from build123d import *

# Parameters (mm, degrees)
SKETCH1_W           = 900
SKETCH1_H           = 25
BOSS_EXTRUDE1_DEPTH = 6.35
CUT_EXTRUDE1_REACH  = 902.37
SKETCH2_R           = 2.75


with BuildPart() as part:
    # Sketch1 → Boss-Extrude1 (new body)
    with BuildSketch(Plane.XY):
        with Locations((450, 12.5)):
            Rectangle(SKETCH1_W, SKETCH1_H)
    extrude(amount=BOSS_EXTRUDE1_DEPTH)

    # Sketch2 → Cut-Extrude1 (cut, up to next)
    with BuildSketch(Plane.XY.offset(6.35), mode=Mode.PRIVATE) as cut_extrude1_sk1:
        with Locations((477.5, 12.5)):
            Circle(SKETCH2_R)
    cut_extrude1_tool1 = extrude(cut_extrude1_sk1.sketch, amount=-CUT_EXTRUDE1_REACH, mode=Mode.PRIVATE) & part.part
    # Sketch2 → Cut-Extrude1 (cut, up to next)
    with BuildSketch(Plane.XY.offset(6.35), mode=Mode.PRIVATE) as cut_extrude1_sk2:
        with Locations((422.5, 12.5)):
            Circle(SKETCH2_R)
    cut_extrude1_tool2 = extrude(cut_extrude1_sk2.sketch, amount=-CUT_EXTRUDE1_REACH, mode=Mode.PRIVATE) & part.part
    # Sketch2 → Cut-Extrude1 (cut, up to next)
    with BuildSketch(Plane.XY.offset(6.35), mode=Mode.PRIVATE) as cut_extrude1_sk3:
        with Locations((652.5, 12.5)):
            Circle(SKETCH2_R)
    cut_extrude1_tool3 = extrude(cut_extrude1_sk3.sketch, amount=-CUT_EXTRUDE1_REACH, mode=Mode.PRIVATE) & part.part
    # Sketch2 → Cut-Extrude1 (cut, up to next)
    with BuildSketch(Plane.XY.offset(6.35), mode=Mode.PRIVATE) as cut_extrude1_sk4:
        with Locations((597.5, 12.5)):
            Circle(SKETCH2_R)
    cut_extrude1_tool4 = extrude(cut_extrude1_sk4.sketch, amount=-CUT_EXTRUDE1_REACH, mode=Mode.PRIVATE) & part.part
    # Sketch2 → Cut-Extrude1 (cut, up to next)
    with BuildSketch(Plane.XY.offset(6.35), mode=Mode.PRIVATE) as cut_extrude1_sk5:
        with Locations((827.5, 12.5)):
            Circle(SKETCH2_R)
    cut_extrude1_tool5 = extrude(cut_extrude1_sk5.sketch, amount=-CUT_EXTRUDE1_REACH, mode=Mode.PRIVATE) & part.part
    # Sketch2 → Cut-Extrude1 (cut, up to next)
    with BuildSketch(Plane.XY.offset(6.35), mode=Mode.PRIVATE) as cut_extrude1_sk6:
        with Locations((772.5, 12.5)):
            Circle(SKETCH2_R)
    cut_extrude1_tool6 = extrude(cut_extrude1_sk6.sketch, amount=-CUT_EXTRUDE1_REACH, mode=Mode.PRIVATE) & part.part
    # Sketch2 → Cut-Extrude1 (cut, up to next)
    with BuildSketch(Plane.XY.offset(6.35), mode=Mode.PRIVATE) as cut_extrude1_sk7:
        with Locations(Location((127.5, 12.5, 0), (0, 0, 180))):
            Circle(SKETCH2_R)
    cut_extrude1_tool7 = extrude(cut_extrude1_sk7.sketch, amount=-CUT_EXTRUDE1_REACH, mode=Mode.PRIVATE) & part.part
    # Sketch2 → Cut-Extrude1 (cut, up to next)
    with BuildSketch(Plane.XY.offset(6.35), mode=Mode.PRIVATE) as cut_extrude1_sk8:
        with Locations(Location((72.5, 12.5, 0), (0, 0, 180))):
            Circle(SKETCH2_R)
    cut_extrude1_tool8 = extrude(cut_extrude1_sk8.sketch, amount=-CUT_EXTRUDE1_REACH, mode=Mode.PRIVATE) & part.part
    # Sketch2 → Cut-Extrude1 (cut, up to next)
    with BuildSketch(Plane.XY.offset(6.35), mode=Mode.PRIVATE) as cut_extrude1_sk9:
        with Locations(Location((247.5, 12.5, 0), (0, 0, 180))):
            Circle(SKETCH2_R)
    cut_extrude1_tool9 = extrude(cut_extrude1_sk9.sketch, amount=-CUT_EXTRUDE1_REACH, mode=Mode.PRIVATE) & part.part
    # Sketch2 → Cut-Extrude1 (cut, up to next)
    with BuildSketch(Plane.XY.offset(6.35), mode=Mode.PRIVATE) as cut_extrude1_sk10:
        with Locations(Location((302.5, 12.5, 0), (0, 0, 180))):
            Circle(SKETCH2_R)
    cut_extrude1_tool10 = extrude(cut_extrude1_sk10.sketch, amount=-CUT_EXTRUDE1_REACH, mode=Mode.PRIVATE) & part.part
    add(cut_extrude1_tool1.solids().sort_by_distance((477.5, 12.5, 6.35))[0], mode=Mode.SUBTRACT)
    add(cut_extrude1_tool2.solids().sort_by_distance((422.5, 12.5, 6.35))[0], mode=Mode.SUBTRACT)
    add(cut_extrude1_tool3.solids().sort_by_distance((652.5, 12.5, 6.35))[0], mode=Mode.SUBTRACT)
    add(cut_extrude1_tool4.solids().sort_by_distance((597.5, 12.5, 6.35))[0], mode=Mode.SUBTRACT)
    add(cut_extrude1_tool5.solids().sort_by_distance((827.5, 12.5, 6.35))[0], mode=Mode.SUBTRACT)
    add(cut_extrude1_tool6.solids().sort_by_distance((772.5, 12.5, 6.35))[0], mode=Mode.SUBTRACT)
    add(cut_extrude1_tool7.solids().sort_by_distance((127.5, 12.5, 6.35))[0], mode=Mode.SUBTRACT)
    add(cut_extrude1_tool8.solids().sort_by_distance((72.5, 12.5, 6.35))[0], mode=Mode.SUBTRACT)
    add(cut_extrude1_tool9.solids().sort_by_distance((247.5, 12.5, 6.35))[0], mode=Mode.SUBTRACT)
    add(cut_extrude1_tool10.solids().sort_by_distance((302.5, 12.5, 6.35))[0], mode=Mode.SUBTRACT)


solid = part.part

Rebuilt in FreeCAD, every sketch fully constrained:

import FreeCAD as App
import Part
import Sketcher
from FreeCAD import Vector
Q = App.Units.Quantity


def add_polygon(sketch, points):
    """Adds a closed chain of lines whose ends are joined by coincident constraints."""
    first, n = sketch.GeometryCount, len(points)
    for a, b in zip(points, points[1:] + points[:1]):
        sketch.addGeometry(Part.LineSegment(App.Vector(*a, 0), App.Vector(*b, 0)), False)
    for i in range(n):
        sketch.addConstraint(Sketcher.Constraint("Coincident", first + i, 2, first + (i + 1) % n, 1))

doc = App.newDocument("Part")
body = doc.addObject("PartDesign::Body", "Body")

# Sketch on XY plane
sketch1 = body.newObject("Sketcher::SketchObject", "Sketch")
sketch1.AttachmentSupport = (doc.getObject("XY_Plane"), [""])
sketch1.MapMode = "FlatFace"
add_polygon(sketch1, [(0, 25), (0, 0), (900, 0), (900, 25)])  # lines 0-3
sketch1.addConstraint([
    Sketcher.Constraint("Vertical", 0),
    Sketcher.Constraint("Horizontal", 1),
    Sketcher.Constraint("Vertical", 2),
    Sketcher.Constraint("Horizontal", 3),
    Sketcher.Constraint("Coincident", 0, 2, -1, 1),
    Sketcher.Constraint("DistanceX", 1, 1, 1, 2, Q("900 mm")),
    Sketcher.Constraint("DistanceY", 0, 2, 0, 1, Q("25 mm")),
])
pad1 = body.newObject("PartDesign::Pad", "Pad")
pad1.Profile = sketch1
pad1.Length = 6.35

# Sketch on XY plane
sketch2 = body.newObject("Sketcher::SketchObject", "Sketch001")
sketch2.AttachmentSupport = (doc.getObject("XY_Plane"), [""])
sketch2.MapMode = "FlatFace"
sketch2.AttachmentOffset = App.Placement(Vector(0, 0, 6.35), App.Rotation())
sketch2.addGeometry(Part.Circle(Vector(477.5, 12.5, 0), Vector(0, 0, 1), 2.8), False)
sketch2.addConstraint([
    Sketcher.Constraint("Diameter", 0, Q("5.5 mm")),
    Sketcher.Constraint("DistanceX", -1, 1, 0, 3, Q("477.5 mm")),
    Sketcher.Constraint("DistanceY", -1, 1, 0, 3, Q("12.5 mm")),
])
pocket1 = body.newObject("PartDesign::Pocket", "Pocket")
pocket1.Profile = sketch2
pocket1.Type = "UpToFirst"

# Sketch on XY plane
sketch3 = body.newObject("Sketcher::SketchObject", "Sketch002")
sketch3.AttachmentSupport = (doc.getObject("XY_Plane"), [""])
sketch3.MapMode = "FlatFace"
sketch3.AttachmentOffset = App.Placement(Vector(0, 0, 6.35), App.Rotation())
sketch3.addGeometry(Part.Circle(Vector(422.5, 12.5, 0), Vector(0, 0, 1), 2.8), False)
sketch3.addConstraint([
    Sketcher.Constraint("Diameter", 0, Q("5.5 mm")),
    Sketcher.Constraint("DistanceX", -1, 1, 0, 3, Q("422.5 mm")),
    Sketcher.Constraint("DistanceY", -1, 1, 0, 3, Q("12.5 mm")),
])
pocket2 = body.newObject("PartDesign::Pocket", "Pocket001")
pocket2.Profile = sketch3
pocket2.Type = "UpToFirst"

# Sketch on XY plane
sketch4 = body.newObject("Sketcher::SketchObject", "Sketch003")
sketch4.AttachmentSupport = (doc.getObject("XY_Plane"), [""])
sketch4.MapMode = "FlatFace"
sketch4.AttachmentOffset = App.Placement(Vector(0, 0, 6.35), App.Rotation())
sketch4.addGeometry(Part.Circle(Vector(652.5, 12.5, 0), Vector(0, 0, 1), 2.8), False)
sketch4.addConstraint([
    Sketcher.Constraint("Diameter", 0, Q("5.5 mm")),
    Sketcher.Constraint("DistanceX", -1, 1, 0, 3, Q("652.5 mm")),
    Sketcher.Constraint("DistanceY", -1, 1, 0, 3, Q("12.5 mm")),
])
pocket3 = body.newObject("PartDesign::Pocket", "Pocket002")
pocket3.Profile = sketch4
pocket3.Type = "UpToFirst"

# Sketch on XY plane
sketch5 = body.newObject("Sketcher::SketchObject", "Sketch004")
sketch5.AttachmentSupport = (doc.getObject("XY_Plane"), [""])
sketch5.MapMode = "FlatFace"
sketch5.AttachmentOffset = App.Placement(Vector(0, 0, 6.35), App.Rotation())
sketch5.addGeometry(Part.Circle(Vector(597.5, 12.5, 0), Vector(0, 0, 1), 2.8), False)
sketch5.addConstraint([
    Sketcher.Constraint("Diameter", 0, Q("5.5 mm")),
    Sketcher.Constraint("DistanceX", -1, 1, 0, 3, Q("597.5 mm")),
    Sketcher.Constraint("DistanceY", -1, 1, 0, 3, Q("12.5 mm")),
])
pocket4 = body.newObject("PartDesign::Pocket", "Pocket003")
pocket4.Profile = sketch5
pocket4.Type = "UpToFirst"

# Sketch on XY plane
sketch6 = body.newObject("Sketcher::SketchObject", "Sketch005")
sketch6.AttachmentSupport = (doc.getObject("XY_Plane"), [""])
sketch6.MapMode = "FlatFace"
sketch6.AttachmentOffset = App.Placement(Vector(0, 0, 6.35), App.Rotation())
sketch6.addGeometry(Part.Circle(Vector(827.5, 12.5, 0), Vector(0, 0, 1), 2.8), False)
sketch6.addConstraint([
    Sketcher.Constraint("Diameter", 0, Q("5.5 mm")),
    Sketcher.Constraint("DistanceX", -1, 1, 0, 3, Q("827.5 mm")),
    Sketcher.Constraint("DistanceY", -1, 1, 0, 3, Q("12.5 mm")),
])
pocket5 = body.newObject("PartDesign::Pocket", "Pocket004")
pocket5.Profile = sketch6
pocket5.Type = "UpToFirst"

# Sketch on XY plane
sketch7 = body.newObject("Sketcher::SketchObject", "Sketch006")
sketch7.AttachmentSupport = (doc.getObject("XY_Plane"), [""])
sketch7.MapMode = "FlatFace"
sketch7.AttachmentOffset = App.Placement(Vector(0, 0, 6.35), App.Rotation())
sketch7.addGeometry(Part.Circle(Vector(772.5, 12.5, 0), Vector(0, 0, 1), 2.8), False)
sketch7.addConstraint([
    Sketcher.Constraint("Diameter", 0, Q("5.5 mm")),
    Sketcher.Constraint("DistanceX", -1, 1, 0, 3, Q("772.5 mm")),
    Sketcher.Constraint("DistanceY", -1, 1, 0, 3, Q("12.5 mm")),
])
pocket6 = body.newObject("PartDesign::Pocket", "Pocket005")
pocket6.Profile = sketch7
pocket6.Type = "UpToFirst"

# Sketch on XY plane
sketch8 = body.newObject("Sketcher::SketchObject", "Sketch007")
sketch8.AttachmentSupport = (doc.getObject("XY_Plane"), [""])
sketch8.MapMode = "FlatFace"
sketch8.AttachmentOffset = App.Placement(Vector(0, 0, 6.35), App.Rotation())
sketch8.addGeometry(Part.Circle(Vector(127.5, 12.5, 0), Vector(0, 0, 1), 2.8), False)
sketch8.addConstraint([
    Sketcher.Constraint("Diameter", 0, Q("5.5 mm")),
    Sketcher.Constraint("DistanceX", -1, 1, 0, 3, Q("127.5 mm")),
    Sketcher.Constraint("DistanceY", -1, 1, 0, 3, Q("12.5 mm")),
])
pocket7 = body.newObject("PartDesign::Pocket", "Pocket006")
pocket7.Profile = sketch8
pocket7.Type = "UpToFirst"

# Sketch on XY plane
sketch9 = body.newObject("Sketcher::SketchObject", "Sketch008")
sketch9.AttachmentSupport = (doc.getObject("XY_Plane"), [""])
sketch9.MapMode = "FlatFace"
sketch9.AttachmentOffset = App.Placement(Vector(0, 0, 6.35), App.Rotation())
sketch9.addGeometry(Part.Circle(Vector(72.5, 12.5, 0), Vector(0, 0, 1), 2.8), False)
sketch9.addConstraint([
    Sketcher.Constraint("Diameter", 0, Q("5.5 mm")),
    Sketcher.Constraint("DistanceX", -1, 1, 0, 3, Q("72.5 mm")),
    Sketcher.Constraint("DistanceY", -1, 1, 0, 3, Q("12.5 mm")),
])
pocket8 = body.newObject("PartDesign::Pocket", "Pocket007")
pocket8.Profile = sketch9
pocket8.Type = "UpToFirst"

# Sketch on XY plane
sketch10 = body.newObject("Sketcher::SketchObject", "Sketch009")
sketch10.AttachmentSupport = (doc.getObject("XY_Plane"), [""])
sketch10.MapMode = "FlatFace"
sketch10.AttachmentOffset = App.Placement(Vector(0, 0, 6.35), App.Rotation())
sketch10.addGeometry(Part.Circle(Vector(247.5, 12.5, 0), Vector(0, 0, 1), 2.8), False)
sketch10.addConstraint([
    Sketcher.Constraint("Diameter", 0, Q("5.5 mm")),
    Sketcher.Constraint("DistanceX", -1, 1, 0, 3, Q("247.5 mm")),
    Sketcher.Constraint("DistanceY", -1, 1, 0, 3, Q("12.5 mm")),
])
pocket9 = body.newObject("PartDesign::Pocket", "Pocket008")
pocket9.Profile = sketch10
pocket9.Type = "UpToFirst"

# Sketch on XY plane
sketch11 = body.newObject("Sketcher::SketchObject", "Sketch010")
sketch11.AttachmentSupport = (doc.getObject("XY_Plane"), [""])
sketch11.MapMode = "FlatFace"
sketch11.AttachmentOffset = App.Placement(Vector(0, 0, 6.35), App.Rotation())
sketch11.addGeometry(Part.Circle(Vector(302.5, 12.5, 0), Vector(0, 0, 1), 2.8), False)
sketch11.addConstraint([
    Sketcher.Constraint("Diameter", 0, Q("5.5 mm")),
    Sketcher.Constraint("DistanceX", -1, 1, 0, 3, Q("302.5 mm")),
    Sketcher.Constraint("DistanceY", -1, 1, 0, 3, Q("12.5 mm")),
])
pocket10 = body.newObject("PartDesign::Pocket", "Pocket009")
pocket10.Profile = sketch11
pocket10.Type = "UpToFirst"

doc.recompute()
